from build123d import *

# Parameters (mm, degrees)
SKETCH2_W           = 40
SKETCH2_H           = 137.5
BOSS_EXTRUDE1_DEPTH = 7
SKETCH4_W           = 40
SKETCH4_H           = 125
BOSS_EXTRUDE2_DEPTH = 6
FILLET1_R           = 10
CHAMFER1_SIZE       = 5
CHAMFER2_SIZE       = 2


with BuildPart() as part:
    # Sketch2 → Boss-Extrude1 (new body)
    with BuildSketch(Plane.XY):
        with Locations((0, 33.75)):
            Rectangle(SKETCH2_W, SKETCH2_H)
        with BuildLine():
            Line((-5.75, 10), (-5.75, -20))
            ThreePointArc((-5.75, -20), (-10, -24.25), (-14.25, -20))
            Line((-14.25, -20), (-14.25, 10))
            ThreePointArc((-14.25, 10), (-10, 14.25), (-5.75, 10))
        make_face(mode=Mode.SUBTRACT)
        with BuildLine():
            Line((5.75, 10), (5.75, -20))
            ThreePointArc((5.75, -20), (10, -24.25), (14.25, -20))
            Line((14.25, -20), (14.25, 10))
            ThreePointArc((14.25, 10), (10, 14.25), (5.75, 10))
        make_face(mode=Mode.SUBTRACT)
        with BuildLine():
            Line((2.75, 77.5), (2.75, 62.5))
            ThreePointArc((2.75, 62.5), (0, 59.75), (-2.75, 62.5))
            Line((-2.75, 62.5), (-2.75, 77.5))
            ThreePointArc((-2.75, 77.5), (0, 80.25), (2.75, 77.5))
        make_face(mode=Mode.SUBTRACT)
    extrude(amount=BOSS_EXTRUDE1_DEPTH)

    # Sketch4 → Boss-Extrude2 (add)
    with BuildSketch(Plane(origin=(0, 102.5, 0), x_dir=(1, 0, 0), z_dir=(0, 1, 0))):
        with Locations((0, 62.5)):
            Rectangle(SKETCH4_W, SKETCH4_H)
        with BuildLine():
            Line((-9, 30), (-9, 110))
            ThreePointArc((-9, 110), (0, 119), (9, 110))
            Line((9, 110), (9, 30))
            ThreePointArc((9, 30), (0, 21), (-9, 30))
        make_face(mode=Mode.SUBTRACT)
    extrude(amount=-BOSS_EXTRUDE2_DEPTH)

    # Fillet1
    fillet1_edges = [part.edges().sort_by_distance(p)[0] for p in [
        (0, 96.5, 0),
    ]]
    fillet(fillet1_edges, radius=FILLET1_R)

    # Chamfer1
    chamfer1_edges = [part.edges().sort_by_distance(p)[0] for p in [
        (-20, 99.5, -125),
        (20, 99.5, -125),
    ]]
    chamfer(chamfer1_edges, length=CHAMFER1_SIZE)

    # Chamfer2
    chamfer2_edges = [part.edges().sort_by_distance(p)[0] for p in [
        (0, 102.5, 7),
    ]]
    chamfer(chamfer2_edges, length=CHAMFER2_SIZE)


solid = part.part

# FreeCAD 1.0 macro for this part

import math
import FreeCAD as App
import Part
import Sketcher
from FreeCAD import Vector
Q = App.Units.Quantity


def edges_at(feature, points):
    """Names of the edges that pass closest to the given points."""
    edges = feature.Shape.Edges
    near = lambda p: min(range(len(edges)), key=lambda i: edges[i].distToShape(Part.Vertex(*p))[0])
    return sorted({f"Edge{near(p) + 1}" for p in points})


def add_polygon(sketch, points):
    """Adds a closed chain of lines whose ends are joined by coincident constraints."""
    first, n = sketch.GeometryCount, len(points)
    for a, b in zip(points, points[1:] + points[:1]):
        sketch.addGeometry(Part.LineSegment(App.Vector(*a, 0), App.Vector(*b, 0)), False)
    for i in range(n):
        sketch.addConstraint(Sketcher.Constraint("Coincident", first + i, 2, first + (i + 1) % n, 1))

doc = App.newDocument("Part")
params = doc.addObject("Spreadsheet::Sheet", "Params")
for row, (alias, value) in enumerate([
    ("sketch1_width", "40 mm"),
    ("sketch1_height", "30 mm"),
    ("sketch1_height2", "15 mm"),
    ("sketch1_radius", "4.25 mm"),
    ("sketch1_radius2", "2.75 mm"),
    ("pad1_length", "7 mm"),
    ("sketch2_radius", "9 mm"),
    ("sketch2_width", "40 mm"),
    ("sketch2_height", "125 mm"),
    ("sketch2_height2", "80 mm"),
    ("pad2_length", "6 mm"),
    ("fillet_radius", "10 mm"),
    ("chamfer_size", "5 mm"),
    ("chamfer2_size", "2 mm"),
], start=1):
    params.set(f"A{row}", alias)
    params.set(f"B{row}", "=" + value)
    params.setAlias(f"B{row}", alias)

body = doc.addObject("PartDesign::Body", "Body")

# Sketch on XY plane
sketch1 = body.newObject("Sketcher::SketchObject", "Sketch")
sketch1.AttachmentSupport = (doc.getObject("XY_Plane"), [""])
sketch1.MapMode = "FlatFace"
add_polygon(sketch1, [(-20, 102.5), (-20, -35), (20, -35), (20, 102.5)])  # lines 0-3
sketch1.addGeometry(Part.ArcOfCircle(Part.Circle(Vector(-10, 10, 0), Vector(0, 0, 1), 4.2), math.radians(0), math.radians(180)), False)  # 4
sketch1.addGeometry(Part.LineSegment(Vector(-5.8, 10, 0), Vector(-5.8, -20, 0)), False)  # 5
sketch1.addGeometry(Part.ArcOfCircle(Part.Circle(Vector(-10, -20, 0), Vector(0, 0, 1), 4.2), math.radians(180), math.radians(360)), False)  # 6
sketch1.addGeometry(Part.LineSegment(Vector(-14.2, -20, 0), Vector(-14.2, 10, 0)), False)  # 7
sketch1.addGeometry(Part.LineSegment(Vector(5.8, -20, 0), Vector(5.8, 10, 0)), False)  # 8
sketch1.addGeometry(Part.ArcOfCircle(Part.Circle(Vector(10, 10, 0), Vector(0, 0, 1), 4.2), math.radians(0), math.radians(180)), False)  # 9
sketch1.addGeometry(Part.LineSegment(Vector(14.2, 10, 0), Vector(14.2, -20, 0)), False)  # 10
sketch1.addGeometry(Part.ArcOfCircle(Part.Circle(Vector(10, -20, 0), Vector(0, 0, 1), 4.2), math.radians(180), math.radians(360)), False)  # 11
sketch1.addGeometry(Part.ArcOfCircle(Part.Circle(Vector(0, 77.5, 0), Vector(0, 0, 1), 2.8), math.radians(0), math.radians(180)), False)  # 12
sketch1.addGeometry(Part.LineSegment(Vector(2.8, 77.5, 0), Vector(2.8, 62.5, 0)), False)  # 13
sketch1.addGeometry(Part.ArcOfCircle(Part.Circle(Vector(0, 62.5, 0), Vector(0, 0, 1), 2.8), math.radians(180), math.radians(360)), False)  # 14
sketch1.addGeometry(Part.LineSegment(Vector(-2.8, 62.5, 0), Vector(-2.8, 77.5, 0)), False)  # 15
sketch1.addConstraint([
    Sketcher.Constraint("Tangent", 4, 1, 5, 1),
    Sketcher.Constraint("Tangent", 5, 2, 6, 2),
    Sketcher.Constraint("Tangent", 6, 1, 7, 1),
    Sketcher.Constraint("Tangent", 7, 2, 4, 2),
    Sketcher.Constraint("Tangent", 8, 2, 9, 2),
    Sketcher.Constraint("Tangent", 9, 1, 10, 1),
    Sketcher.Constraint("Tangent", 10, 2, 11, 2),
    Sketcher.Constraint("Tangent", 11, 1, 8, 1),
    Sketcher.Constraint("Tangent", 12, 1, 13, 1),
    Sketcher.Constraint("Tangent", 13, 2, 14, 2),
    Sketcher.Constraint("Tangent", 14, 1, 15, 1),
    Sketcher.Constraint("Tangent", 15, 2, 12, 2),
    Sketcher.Constraint("Vertical", 0),
    Sketcher.Constraint("Horizontal", 1),
    Sketcher.Constraint("Vertical", 2),
    Sketcher.Constraint("Horizontal", 3),
    Sketcher.Constraint("Vertical", 5),
    Sketcher.Constraint("Vertical", 7),
    Sketcher.Constraint("Vertical", 8),
    Sketcher.Constraint("Vertical", 10),
    Sketcher.Constraint("Vertical", 13),
    Sketcher.Constraint("Vertical", 15),
    Sketcher.Constraint("Equal", 6, 9),
    Sketcher.Constraint("Symmetric", 4, 3, 9, 3, -2),
    Sketcher.Constraint("PointOnObject", 12, 3, -2),
    Sketcher.Constraint("Horizontal", 6, 3, 11, 3),
    Sketcher.Constraint("DistanceX", 1, 1, 1, 2, Q("40 mm")),
    Sketcher.Constraint("DistanceY", 5, 2, 5, 1, Q("30 mm")),
    Sketcher.Constraint("DistanceY", 13, 2, 13, 1, Q("15 mm")),
    Sketcher.Constraint("Radius", 4, Q("4.25 mm")),
    Sketcher.Constraint("Radius", 12, Q("2.75 mm")),
    Sketcher.Constraint("DistanceY", 0, 2, 0, 1, Q("137.5 mm")),
    Sketcher.Constraint("DistanceX", 4, 3, -1, 1, Q("10 mm")),
    Sketcher.Constraint("DistanceY", -1, 1, 4, 3, Q("10 mm")),
    Sketcher.Constraint("DistanceX", 0, 2, -1, 1, Q("20 mm")),
    Sketcher.Constraint("DistanceY", 0, 2, -1, 1, Q("35 mm")),
    Sketcher.Constraint("DistanceY", 12, 3, 2, 2, Q("25 mm")),
])
sketch1.setExpression("Constraints[30]", "Params.sketch1_width")
sketch1.setExpression("Constraints[31]", "Params.sketch1_height")
sketch1.setExpression("Constraints[32]", "Params.sketch1_height2")
sketch1.setExpression("Constraints[33]", "Params.sketch1_radius")
sketch1.setExpression("Constraints[34]", "Params.sketch1_radius2")
pad1 = body.newObject("PartDesign::Pad", "Pad")
pad1.Profile = sketch1
pad1.setExpression("Length", "Params.pad1_length")

# Sketch on XZ plane
sketch2 = body.newObject("Sketcher::SketchObject", "Sketch001")
sketch2.AttachmentSupport = (doc.getObject("XZ_Plane"), [""])
sketch2.MapMode = "FlatFace"
sketch2.AttachmentOffset = App.Placement(Vector(0, 0, -102.5), App.Rotation())
add_polygon(sketch2, [(-20, -125), (-20, 0), (20, 0), (20, -125)])  # lines 0-3
sketch2.addGeometry(Part.ArcOfCircle(Part.Circle(Vector(0, -30, 0), Vector(0, 0, 1), 9), math.radians(0), math.radians(180)), False)  # 4
sketch2.addGeometry(Part.LineSegment(Vector(-9, -30, 0), Vector(-9, -110, 0)), False)  # 5
sketch2.addGeometry(Part.ArcOfCircle(Part.Circle(Vector(0, -110, 0), Vector(0, 0, 1), 9), math.radians(180), math.radians(360)), False)  # 6
sketch2.addGeometry(Part.LineSegment(Vector(9, -110, 0), Vector(9, -30, 0)), False)  # 7
sketch2.addConstraint([
    Sketcher.Constraint("Tangent", 4, 2, 5, 1),
    Sketcher.Constraint("Tangent", 5, 2, 6, 1),
    Sketcher.Constraint("Tangent", 6, 2, 7, 1),
    Sketcher.Constraint("Tangent", 7, 2, 4, 1),
    Sketcher.Constraint("Vertical", 0),
    Sketcher.Constraint("Horizontal", 1),
    Sketcher.Constraint("Vertical", 2),
    Sketcher.Constraint("Horizontal", 3),
    Sketcher.Constraint("Vertical", 5),
    Sketcher.Constraint("Vertical", 7),
    Sketcher.Constraint("Symmetric", 0, 2, 1, 2, -1, 1),
    Sketcher.Constraint("PointOnObject", 4, 3, -2),
    Sketcher.Constraint("Radius", 4, Q("9 mm")),
    Sketcher.Constraint("DistanceX", 1, 1, 1, 2, Q("40 mm")),
    Sketcher.Constraint("DistanceY", 0, 1, 0, 2, Q("125 mm")),
    Sketcher.Constraint("DistanceY", 5, 2, 5, 1, Q("80 mm")),
    Sketcher.Constraint("DistanceY", 4, 3, -1, 1, Q("30 mm")),
])
sketch2.setExpression("Constraints[16]", "Params.sketch2_radius")
sketch2.setExpression("Constraints[17]", "Params.sketch2_width")
sketch2.setExpression("Constraints[18]", "Params.sketch2_height")
sketch2.setExpression("Constraints[19]", "Params.sketch2_height2")
pad2 = body.newObject("PartDesign::Pad", "Pad001")
pad2.Profile = sketch2
pad2.setExpression("Length", "Params.pad2_length")
doc.recompute()

fillet = body.newObject("PartDesign::Fillet", "Fillet")
fillet.Base = (pad2, edges_at(pad2, [(0, 96.5, 0)]))
fillet.setExpression("Radius", "Params.fillet_radius")
doc.recompute()

chamfer = body.newObject("PartDesign::Chamfer", "Chamfer")
chamfer.Base = (fillet, edges_at(fillet, [(-20, 99.5, -125), (20, 99.5, -125)]))
chamfer.setExpression("Size", "Params.chamfer_size")
doc.recompute()

chamfer2 = body.newObject("PartDesign::Chamfer", "Chamfer001")
chamfer2.Base = (chamfer, edges_at(chamfer, [(0, 102.5, 7)]))
chamfer2.setExpression("Size", "Params.chamfer2_size")

doc.recompute()
